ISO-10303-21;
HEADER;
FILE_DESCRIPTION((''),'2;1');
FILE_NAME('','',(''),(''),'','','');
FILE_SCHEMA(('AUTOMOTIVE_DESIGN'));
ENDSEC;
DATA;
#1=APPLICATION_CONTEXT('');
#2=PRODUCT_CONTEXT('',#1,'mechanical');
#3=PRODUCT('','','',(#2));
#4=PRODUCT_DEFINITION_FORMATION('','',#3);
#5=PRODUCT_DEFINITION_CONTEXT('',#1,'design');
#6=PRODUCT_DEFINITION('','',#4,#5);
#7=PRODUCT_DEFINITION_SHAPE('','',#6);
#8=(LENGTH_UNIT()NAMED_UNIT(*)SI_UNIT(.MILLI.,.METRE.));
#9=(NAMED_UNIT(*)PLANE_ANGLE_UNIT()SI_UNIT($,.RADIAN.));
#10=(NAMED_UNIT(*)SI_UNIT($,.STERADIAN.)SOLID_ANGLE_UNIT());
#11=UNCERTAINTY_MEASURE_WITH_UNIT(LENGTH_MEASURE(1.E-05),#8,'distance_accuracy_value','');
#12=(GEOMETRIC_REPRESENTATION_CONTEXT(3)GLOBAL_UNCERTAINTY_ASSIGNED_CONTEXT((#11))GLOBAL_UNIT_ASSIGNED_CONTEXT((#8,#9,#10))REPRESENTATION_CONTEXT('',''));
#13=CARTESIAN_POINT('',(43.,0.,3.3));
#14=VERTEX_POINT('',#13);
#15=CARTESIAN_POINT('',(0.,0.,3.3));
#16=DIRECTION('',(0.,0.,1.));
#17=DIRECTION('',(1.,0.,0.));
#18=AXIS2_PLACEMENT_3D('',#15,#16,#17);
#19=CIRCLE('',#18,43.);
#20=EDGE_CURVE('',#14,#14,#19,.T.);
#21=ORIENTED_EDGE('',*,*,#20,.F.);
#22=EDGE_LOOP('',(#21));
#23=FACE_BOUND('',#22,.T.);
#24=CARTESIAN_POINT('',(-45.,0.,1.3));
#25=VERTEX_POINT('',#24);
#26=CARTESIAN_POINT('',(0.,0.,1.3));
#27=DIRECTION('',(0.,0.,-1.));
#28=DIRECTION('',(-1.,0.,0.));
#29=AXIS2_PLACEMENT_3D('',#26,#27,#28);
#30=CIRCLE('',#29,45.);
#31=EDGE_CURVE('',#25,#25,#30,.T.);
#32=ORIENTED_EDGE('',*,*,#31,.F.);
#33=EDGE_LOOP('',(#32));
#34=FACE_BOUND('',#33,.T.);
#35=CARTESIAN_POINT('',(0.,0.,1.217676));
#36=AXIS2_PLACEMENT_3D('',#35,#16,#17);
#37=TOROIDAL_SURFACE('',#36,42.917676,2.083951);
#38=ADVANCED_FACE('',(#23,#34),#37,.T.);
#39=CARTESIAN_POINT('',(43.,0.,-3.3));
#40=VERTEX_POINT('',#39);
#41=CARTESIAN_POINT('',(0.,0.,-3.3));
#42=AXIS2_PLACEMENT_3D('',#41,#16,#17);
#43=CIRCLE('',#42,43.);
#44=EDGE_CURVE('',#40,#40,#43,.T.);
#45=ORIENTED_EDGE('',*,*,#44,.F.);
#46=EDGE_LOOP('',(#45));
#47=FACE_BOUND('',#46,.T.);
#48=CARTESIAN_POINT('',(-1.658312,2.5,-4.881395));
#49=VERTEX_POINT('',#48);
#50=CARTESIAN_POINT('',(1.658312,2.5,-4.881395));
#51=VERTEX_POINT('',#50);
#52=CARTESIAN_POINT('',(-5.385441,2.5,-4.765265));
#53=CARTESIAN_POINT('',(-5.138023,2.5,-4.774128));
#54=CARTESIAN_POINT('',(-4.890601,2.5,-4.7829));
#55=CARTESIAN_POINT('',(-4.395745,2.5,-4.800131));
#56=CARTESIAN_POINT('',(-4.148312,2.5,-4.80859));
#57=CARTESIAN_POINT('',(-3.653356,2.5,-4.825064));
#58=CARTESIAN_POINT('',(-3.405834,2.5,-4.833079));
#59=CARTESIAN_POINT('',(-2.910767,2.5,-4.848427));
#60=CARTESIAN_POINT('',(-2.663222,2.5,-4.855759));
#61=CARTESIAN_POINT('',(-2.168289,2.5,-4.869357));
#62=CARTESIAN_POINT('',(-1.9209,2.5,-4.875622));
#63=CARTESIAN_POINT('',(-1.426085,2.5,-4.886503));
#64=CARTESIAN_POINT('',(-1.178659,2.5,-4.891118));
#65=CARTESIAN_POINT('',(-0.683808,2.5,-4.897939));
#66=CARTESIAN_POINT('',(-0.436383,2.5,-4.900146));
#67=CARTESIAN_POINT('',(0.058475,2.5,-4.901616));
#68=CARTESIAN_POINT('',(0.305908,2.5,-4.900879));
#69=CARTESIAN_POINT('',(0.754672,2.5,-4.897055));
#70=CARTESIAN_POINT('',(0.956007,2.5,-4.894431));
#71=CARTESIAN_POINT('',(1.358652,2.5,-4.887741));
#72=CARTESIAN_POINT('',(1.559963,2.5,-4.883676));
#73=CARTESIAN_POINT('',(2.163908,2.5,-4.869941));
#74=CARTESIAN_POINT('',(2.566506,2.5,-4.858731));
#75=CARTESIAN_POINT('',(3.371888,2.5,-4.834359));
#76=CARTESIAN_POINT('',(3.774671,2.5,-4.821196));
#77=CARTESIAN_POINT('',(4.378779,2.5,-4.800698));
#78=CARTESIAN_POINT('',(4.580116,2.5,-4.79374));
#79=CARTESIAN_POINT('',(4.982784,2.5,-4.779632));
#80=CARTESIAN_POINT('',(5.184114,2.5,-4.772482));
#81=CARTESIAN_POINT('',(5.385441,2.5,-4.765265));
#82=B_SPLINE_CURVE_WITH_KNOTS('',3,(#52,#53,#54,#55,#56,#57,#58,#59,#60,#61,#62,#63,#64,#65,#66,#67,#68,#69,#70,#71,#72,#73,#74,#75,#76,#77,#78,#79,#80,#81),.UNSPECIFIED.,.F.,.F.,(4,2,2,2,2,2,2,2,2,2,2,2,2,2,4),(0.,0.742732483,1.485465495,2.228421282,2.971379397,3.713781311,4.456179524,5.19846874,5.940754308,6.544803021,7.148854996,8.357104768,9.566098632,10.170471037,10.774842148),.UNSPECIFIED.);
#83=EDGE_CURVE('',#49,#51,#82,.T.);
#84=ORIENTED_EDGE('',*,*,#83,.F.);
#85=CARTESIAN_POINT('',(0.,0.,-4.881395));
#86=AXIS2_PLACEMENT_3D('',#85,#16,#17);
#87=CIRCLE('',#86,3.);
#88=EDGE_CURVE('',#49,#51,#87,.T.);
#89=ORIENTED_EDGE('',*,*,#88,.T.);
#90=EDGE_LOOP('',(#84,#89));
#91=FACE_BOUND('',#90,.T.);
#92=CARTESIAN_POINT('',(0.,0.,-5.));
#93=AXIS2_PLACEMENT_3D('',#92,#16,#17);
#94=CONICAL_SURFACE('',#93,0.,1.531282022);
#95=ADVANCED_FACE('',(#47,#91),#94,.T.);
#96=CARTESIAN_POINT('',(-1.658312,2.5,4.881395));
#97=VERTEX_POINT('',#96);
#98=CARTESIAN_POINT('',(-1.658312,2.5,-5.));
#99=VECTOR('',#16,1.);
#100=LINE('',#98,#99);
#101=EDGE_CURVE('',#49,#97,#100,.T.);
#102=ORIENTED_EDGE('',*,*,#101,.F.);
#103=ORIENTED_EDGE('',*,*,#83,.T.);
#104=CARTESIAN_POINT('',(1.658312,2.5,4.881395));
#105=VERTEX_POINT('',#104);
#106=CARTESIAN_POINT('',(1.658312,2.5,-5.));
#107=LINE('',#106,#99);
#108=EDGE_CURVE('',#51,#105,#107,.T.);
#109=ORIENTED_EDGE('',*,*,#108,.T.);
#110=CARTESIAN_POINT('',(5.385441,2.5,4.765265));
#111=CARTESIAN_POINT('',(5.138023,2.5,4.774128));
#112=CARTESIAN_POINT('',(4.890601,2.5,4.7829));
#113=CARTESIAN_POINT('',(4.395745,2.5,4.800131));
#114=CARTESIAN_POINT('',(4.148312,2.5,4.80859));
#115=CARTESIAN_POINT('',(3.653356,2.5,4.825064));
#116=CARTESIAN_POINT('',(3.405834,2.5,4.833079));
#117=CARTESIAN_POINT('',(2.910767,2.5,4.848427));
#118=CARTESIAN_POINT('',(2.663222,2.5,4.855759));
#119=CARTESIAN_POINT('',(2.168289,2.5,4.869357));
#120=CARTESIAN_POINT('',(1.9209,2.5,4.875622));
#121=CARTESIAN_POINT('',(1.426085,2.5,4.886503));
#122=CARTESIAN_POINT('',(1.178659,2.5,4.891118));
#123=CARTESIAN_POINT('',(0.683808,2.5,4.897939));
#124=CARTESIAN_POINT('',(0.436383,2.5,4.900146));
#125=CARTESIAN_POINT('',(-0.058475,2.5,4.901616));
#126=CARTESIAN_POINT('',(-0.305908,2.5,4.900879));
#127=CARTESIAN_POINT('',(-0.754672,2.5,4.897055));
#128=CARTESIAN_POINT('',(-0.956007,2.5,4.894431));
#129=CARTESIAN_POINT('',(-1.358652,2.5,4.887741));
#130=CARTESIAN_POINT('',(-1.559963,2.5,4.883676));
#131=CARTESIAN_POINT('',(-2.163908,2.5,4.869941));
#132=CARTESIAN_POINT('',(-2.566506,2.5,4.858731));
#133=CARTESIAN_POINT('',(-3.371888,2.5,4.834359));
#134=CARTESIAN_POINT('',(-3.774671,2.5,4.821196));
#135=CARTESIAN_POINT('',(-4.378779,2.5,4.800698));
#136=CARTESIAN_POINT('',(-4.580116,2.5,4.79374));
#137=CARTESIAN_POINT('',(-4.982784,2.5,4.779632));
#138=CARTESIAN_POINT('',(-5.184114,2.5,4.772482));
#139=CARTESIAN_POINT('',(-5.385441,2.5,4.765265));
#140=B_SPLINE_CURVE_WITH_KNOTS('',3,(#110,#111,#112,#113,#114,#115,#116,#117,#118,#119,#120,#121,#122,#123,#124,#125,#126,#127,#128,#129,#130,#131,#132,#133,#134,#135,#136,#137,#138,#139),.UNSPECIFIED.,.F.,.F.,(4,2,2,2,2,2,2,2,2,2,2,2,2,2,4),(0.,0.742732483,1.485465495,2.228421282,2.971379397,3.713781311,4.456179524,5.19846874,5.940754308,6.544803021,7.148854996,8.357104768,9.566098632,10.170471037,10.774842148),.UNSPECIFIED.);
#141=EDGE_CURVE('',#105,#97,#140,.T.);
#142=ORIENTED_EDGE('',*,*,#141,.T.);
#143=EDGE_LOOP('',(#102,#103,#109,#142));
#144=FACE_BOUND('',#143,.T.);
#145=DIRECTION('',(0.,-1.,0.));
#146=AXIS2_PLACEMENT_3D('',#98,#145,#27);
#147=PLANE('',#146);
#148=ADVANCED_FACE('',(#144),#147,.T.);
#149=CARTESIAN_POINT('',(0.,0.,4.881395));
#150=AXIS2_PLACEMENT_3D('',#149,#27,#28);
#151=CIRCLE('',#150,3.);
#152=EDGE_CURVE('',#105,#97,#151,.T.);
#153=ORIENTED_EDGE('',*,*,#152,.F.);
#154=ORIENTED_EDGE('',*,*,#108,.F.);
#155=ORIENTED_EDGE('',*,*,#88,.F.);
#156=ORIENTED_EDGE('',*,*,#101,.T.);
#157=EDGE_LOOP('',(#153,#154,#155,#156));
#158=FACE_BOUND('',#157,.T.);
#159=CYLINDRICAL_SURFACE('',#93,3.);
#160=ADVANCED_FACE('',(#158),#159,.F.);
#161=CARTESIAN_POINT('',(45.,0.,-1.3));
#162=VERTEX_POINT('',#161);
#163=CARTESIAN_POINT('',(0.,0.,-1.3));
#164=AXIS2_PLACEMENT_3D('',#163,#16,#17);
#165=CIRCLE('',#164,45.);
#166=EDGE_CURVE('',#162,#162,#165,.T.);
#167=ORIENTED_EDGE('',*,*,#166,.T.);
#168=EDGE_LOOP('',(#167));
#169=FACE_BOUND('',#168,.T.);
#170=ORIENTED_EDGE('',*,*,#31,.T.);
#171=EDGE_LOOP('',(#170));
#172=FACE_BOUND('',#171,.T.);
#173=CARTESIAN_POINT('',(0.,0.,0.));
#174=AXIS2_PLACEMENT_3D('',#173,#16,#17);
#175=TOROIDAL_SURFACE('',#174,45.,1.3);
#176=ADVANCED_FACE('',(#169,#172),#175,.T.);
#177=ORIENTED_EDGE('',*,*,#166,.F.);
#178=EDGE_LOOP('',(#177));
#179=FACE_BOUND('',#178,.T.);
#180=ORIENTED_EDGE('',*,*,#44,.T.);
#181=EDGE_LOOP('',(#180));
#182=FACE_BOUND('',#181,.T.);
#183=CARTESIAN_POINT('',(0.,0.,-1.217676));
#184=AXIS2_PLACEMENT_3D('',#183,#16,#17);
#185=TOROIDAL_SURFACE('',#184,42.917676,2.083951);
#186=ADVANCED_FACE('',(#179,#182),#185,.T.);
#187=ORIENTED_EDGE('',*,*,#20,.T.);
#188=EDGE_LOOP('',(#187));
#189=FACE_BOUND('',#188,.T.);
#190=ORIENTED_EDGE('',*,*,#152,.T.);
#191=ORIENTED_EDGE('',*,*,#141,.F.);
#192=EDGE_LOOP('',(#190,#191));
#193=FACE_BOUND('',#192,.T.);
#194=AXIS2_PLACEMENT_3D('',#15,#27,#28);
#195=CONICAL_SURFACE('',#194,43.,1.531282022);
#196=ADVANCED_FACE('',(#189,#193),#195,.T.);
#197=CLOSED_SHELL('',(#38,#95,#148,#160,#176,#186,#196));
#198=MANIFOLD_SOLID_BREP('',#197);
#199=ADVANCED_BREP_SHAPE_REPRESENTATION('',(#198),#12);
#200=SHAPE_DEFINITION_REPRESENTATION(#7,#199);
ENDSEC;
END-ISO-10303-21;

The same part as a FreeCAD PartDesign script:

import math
import FreeCAD as App
import Part
import Sketcher
Q = App.Units.Quantity

doc = App.newDocument("Part")
body = doc.addObject("PartDesign::Body", "Body")

sketch1 = doc.addObject("Sketcher::SketchObject", "Sketch")
body.addObject(sketch1)
sketch1.AttachmentSupport = (doc.YZ_Plane, [""])
sketch1.MapMode = "FlatFace"
sketch1.addGeometry([
    Part.LineSegment(App.Vector(0, 5, 0), App.Vector(0, -5, 0)),
    Part.LineSegment(App.Vector(0, -5, 0), App.Vector(43, -3.3, 0)),
    Part.ArcOfCircle(Part.Circle(App.Vector(42.9, -1.2, 0), App.Vector(0, 0, 1), 2.1), math.radians(-88), math.radians(-2)),
    Part.ArcOfCircle(Part.Circle(App.Vector(45, 0, 0), App.Vector(0, 0, 1), 1.3), math.radians(90), math.radians(270)),
    Part.ArcOfCircle(Part.Circle(App.Vector(42.9, 1.2, 0), App.Vector(0, 0, 1), 2.1), math.radians(2), math.radians(88)),
    Part.LineSegment(App.Vector(43, 3.3, 0), App.Vector(0, 5, 0)),
], False)
sketch1.addConstraint([
    Sketcher.Constraint("Coincident", 0, 2, 1, 1),
    Sketcher.Constraint("Tangent", 1, 2, 2, 1),
    Sketcher.Constraint("Coincident", 2, 2, 3, 2),
    Sketcher.Constraint("Coincident", 3, 1, 4, 1),
    Sketcher.Constraint("Tangent", 4, 2, 5, 1),
    Sketcher.Constraint("Coincident", 5, 2, 0, 1),
    Sketcher.Constraint("Vertical", 0),
    Sketcher.Constraint("Equal", 2, 4),
    Sketcher.Constraint("Symmetric", 0, 2, 5, 2, -1, 1),
    Sketcher.Constraint("Symmetric", 2, 3, 4, 3, -1),
    Sketcher.Constraint("PointOnObject", 3, 3, -1),
    Sketcher.Constraint("Vertical", 3, 3, 2, 2),
    Sketcher.Constraint("Radius", 3, Q("1.3 mm")),
    Sketcher.Constraint("DistanceY", 0, 2, 0, 1, Q("10 mm")),
    Sketcher.Constraint("DistanceX", -1, 1, 3, 3, Q("45 mm")),
    Sketcher.Constraint("DistanceX", -1, 1, 1, 2, Q("43 mm")),
    Sketcher.Constraint("DistanceY", 1, 2, 2, 2, Q("2 mm")),
])
revolution = doc.addObject("PartDesign::Revolution", "Revolution")
body.addObject(revolution)
revolution.Profile = sketch1
revolution.ReferenceAxis = (sketch1, ["V_Axis"])
revolution.Angle = 360

sketch2 = doc.addObject("Sketcher::SketchObject", "Sketch001")
body.addObject(sketch2)
sketch2.AttachmentSupport = (doc.XY_Plane, [""])
sketch2.MapMode = "FlatFace"
sketch2.addGeometry([
    Part.LineSegment(App.Vector(1.7, 2.5, 0), App.Vector(-1.7, 2.5, 0)),
    Part.ArcOfCircle(Part.Circle(App.Vector(0, 0, 0), App.Vector(0, 0, 1), 3), math.radians(124), math.radians(416)),
], False)
sketch2.addConstraint([
    Sketcher.Constraint("Coincident", 0, 1, 1, 2),
    Sketcher.Constraint("Coincident", 1, 1, 0, 2),
    Sketcher.Constraint("Horizontal", 0),
    Sketcher.Constraint("Coincident", 1, 3, -1, 1),
    Sketcher.Constraint("Radius", 1, Q("3 mm")),
    Sketcher.Constraint("DistanceY", -1, 1, 0, 1, Q("2.5 mm")),
])
pocket1 = doc.addObject("PartDesign::Pocket", "Pocket")
body.addObject(pocket1)
pocket1.Profile = sketch2
pocket1.Type = "ThroughAll"
pocket1.Midplane = True

sketch3 = doc.addObject("Sketcher::SketchObject", "Sketch002")
body.addObject(sketch3)
sketch3.AttachmentSupport = (doc.YZ_Plane, [""])
sketch3.MapMode = "FlatFace"
sketch3.addGeometry(Part.Circle(App.Vector(45, 0, 0), App.Vector(0, 0, 1), 1.3), False)
sketch3.addConstraint([
    Sketcher.Constraint("PointOnObject", 0, 3, -1),
    Sketcher.Constraint("Diameter", 0, Q("2.6 mm")),
    Sketcher.Constraint("DistanceX", -1, 1, 0, 3, Q("45 mm")),
])
revolution2 = doc.addObject("PartDesign::Revolution", "Revolution001")
body.addObject(revolution2)
revolution2.Profile = sketch3
revolution2.ReferenceAxis = (sketch3, ["V_Axis"])
revolution2.Angle = 360

doc.recompute()
